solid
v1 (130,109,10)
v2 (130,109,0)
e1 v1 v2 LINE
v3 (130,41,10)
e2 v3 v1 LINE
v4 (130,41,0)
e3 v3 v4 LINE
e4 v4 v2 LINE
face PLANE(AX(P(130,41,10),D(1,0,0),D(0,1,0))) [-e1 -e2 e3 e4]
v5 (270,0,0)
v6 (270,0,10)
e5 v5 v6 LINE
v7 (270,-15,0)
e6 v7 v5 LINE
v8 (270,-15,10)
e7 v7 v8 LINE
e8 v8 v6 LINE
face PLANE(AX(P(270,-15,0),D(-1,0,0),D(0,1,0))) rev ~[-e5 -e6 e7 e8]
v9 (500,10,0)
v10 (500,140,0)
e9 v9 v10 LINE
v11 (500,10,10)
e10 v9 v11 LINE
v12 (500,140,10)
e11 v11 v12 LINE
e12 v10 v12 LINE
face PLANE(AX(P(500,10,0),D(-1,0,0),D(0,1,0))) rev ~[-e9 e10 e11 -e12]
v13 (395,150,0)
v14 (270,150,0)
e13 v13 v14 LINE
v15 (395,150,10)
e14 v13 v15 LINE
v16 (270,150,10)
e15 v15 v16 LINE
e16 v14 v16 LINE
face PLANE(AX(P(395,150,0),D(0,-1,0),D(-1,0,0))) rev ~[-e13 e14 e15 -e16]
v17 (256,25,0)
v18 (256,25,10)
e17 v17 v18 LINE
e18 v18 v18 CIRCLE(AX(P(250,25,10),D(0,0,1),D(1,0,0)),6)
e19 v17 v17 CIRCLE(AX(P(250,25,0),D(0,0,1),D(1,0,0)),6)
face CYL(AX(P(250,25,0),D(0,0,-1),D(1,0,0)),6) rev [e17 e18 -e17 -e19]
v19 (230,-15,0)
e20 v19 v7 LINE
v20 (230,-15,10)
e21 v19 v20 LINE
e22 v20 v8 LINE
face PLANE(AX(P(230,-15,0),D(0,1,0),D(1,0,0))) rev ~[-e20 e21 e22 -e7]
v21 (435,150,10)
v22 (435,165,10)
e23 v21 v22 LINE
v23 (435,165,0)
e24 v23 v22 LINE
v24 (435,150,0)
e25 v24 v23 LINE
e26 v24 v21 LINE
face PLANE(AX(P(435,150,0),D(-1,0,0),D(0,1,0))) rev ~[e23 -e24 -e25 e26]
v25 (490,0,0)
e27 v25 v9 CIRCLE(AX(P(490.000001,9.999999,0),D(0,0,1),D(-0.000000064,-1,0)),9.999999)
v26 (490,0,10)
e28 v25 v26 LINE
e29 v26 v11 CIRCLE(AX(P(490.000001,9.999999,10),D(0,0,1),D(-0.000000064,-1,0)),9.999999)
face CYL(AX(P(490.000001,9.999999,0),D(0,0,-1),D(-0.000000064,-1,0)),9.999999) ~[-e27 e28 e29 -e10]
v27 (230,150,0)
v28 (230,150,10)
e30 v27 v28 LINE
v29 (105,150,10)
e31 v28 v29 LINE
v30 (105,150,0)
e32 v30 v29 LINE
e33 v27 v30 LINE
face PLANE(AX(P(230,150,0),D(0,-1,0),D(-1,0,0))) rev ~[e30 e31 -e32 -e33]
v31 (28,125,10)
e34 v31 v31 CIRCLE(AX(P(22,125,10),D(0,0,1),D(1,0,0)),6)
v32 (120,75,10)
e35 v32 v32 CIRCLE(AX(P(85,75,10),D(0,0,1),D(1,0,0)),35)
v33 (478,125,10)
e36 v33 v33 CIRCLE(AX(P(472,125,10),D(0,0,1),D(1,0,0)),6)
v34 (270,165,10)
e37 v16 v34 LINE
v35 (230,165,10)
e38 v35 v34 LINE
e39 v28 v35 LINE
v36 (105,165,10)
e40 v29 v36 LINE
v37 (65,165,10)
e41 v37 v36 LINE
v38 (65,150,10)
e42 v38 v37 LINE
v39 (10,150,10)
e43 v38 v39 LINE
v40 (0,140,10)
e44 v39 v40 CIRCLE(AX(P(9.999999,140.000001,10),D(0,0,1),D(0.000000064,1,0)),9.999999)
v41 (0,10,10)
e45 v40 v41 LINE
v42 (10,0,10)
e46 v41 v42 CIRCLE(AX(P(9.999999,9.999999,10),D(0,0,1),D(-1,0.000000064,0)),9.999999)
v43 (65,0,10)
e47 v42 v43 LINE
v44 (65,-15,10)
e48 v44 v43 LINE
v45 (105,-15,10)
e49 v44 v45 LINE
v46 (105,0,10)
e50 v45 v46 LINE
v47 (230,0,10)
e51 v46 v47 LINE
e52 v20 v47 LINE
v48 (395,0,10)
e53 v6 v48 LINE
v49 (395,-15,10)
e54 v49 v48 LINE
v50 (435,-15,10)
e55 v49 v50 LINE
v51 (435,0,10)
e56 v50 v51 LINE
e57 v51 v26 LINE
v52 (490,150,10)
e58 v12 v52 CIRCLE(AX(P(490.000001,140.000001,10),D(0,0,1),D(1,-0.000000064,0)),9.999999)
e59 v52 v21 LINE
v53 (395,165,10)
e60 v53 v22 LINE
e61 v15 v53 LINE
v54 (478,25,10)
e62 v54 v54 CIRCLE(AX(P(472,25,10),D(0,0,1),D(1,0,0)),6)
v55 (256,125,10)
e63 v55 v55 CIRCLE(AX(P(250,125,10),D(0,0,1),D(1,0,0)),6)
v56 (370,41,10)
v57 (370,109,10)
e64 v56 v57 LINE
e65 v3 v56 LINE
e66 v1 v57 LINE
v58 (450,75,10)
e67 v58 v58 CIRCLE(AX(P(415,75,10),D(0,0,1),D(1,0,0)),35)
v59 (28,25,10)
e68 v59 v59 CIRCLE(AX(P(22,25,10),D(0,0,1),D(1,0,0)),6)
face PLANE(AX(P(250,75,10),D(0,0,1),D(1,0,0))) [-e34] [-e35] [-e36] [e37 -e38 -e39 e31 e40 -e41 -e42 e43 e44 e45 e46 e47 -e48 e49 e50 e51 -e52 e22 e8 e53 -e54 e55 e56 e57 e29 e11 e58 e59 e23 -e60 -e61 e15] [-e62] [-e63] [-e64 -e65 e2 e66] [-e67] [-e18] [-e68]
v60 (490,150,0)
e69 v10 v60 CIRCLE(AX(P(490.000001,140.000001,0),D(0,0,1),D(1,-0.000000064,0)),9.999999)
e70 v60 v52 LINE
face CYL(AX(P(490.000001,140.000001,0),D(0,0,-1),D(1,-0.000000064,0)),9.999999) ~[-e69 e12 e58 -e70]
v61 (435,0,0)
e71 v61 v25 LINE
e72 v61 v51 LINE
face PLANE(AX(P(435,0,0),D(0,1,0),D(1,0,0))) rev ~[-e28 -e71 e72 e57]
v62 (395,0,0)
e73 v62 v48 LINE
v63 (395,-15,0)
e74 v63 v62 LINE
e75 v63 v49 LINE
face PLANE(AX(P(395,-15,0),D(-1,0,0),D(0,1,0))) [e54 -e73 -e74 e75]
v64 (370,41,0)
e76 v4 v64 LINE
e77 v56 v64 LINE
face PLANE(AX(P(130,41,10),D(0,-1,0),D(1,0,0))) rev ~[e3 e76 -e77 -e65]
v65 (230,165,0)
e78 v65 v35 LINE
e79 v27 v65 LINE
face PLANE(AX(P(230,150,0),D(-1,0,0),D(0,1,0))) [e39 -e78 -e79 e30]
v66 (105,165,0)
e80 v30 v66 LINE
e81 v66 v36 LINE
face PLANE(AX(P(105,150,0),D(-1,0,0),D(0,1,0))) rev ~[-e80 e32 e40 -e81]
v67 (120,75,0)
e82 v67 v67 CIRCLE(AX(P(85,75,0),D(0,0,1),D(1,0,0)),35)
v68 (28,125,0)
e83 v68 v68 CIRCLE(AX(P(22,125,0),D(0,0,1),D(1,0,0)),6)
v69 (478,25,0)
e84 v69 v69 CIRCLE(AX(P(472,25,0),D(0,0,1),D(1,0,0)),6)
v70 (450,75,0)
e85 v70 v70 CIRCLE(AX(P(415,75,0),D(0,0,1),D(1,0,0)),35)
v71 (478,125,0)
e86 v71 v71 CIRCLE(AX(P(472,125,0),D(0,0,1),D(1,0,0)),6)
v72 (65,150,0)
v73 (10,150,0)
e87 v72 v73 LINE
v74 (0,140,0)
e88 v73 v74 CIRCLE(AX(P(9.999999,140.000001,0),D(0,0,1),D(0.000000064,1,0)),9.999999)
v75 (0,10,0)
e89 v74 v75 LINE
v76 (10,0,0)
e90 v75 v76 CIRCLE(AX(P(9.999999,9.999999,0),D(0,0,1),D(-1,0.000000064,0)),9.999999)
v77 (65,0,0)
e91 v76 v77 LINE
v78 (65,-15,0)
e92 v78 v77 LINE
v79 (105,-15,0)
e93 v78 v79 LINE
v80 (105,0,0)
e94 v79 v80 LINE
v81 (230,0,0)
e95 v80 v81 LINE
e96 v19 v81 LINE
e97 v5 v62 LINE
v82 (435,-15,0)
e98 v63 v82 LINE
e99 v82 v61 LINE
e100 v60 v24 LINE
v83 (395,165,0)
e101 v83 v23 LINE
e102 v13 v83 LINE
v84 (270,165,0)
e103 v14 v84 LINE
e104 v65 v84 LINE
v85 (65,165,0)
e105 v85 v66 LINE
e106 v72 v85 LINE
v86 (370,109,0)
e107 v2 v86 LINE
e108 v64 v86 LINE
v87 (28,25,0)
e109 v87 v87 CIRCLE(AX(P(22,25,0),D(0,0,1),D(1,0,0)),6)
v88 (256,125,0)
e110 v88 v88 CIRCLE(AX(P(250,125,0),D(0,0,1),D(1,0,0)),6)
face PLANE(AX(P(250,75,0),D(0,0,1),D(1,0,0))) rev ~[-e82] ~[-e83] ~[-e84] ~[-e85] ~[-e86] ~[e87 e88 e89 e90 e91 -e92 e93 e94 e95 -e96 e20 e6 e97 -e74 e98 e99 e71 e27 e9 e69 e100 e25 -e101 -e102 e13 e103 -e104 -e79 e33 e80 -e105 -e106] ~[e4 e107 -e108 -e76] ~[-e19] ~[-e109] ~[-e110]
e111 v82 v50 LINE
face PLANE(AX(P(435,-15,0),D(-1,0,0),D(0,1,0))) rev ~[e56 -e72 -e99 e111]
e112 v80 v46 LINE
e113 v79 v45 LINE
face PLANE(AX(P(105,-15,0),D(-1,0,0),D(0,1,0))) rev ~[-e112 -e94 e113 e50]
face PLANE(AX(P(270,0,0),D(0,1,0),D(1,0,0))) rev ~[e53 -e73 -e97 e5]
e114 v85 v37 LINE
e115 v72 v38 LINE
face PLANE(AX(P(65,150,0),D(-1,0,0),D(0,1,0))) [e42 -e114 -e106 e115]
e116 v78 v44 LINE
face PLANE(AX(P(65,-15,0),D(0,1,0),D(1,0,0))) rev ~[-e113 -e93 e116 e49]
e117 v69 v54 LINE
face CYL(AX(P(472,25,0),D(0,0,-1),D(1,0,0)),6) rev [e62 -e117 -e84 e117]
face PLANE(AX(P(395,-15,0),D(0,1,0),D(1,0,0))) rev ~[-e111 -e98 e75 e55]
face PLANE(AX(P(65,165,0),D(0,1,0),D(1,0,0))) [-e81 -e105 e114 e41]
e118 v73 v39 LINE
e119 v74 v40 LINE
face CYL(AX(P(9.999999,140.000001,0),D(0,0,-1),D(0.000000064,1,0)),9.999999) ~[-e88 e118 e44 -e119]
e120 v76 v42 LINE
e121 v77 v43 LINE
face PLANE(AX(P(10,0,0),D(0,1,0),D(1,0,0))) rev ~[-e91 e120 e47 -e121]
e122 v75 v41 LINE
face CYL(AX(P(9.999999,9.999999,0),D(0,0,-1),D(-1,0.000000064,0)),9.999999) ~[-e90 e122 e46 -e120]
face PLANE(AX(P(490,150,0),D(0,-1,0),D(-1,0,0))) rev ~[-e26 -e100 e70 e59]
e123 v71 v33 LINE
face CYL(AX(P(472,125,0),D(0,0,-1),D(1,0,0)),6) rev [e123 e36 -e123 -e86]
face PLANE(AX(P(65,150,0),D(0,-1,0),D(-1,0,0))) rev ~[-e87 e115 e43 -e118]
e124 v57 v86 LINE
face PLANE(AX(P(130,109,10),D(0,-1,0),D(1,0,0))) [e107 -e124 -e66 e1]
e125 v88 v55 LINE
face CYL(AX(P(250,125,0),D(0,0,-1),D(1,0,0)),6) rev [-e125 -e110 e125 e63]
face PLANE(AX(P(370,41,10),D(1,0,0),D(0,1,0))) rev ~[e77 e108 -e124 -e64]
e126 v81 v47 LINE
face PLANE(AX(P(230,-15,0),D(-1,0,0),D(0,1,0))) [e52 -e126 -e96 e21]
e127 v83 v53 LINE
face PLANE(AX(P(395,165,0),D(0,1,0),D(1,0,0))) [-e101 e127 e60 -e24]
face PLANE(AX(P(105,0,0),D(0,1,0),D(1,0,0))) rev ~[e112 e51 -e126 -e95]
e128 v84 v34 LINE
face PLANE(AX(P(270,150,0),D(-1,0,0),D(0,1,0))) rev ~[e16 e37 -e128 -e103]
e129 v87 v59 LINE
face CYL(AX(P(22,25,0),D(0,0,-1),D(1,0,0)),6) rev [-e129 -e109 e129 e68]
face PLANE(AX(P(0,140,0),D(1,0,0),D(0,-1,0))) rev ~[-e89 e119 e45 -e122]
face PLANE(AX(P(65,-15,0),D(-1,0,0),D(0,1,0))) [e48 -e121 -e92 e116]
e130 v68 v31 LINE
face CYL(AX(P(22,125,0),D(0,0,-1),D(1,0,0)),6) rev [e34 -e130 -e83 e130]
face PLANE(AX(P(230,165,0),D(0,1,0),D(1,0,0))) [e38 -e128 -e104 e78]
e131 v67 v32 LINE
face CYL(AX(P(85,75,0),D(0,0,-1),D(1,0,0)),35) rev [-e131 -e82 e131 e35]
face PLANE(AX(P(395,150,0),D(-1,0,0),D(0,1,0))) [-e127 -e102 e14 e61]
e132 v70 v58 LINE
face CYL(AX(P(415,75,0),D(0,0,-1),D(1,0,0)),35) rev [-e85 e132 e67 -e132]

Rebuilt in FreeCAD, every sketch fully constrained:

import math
import FreeCAD as App
import Part
import Sketcher

V = App.Vector

doc = App.newDocument("Part")
params = doc.addObject("Spreadsheet::Sheet", "Params")
for row, (alias, value) in enumerate([
    ("sketch1_diameter", "12 mm"),
    ("sketch1_diameter2", "70 mm"),
    ("sketch1_radius", "9.999999 mm"),
    ("sketch1_width", "55 mm"),
    ("sketch1_width2", "40 mm"),
    ("pad1_length", "10 mm"),
    ("sketch2_width", "240 mm"),
    ("sketch2_height", "68 mm"),
    ("pocket1_length", "25 mm"),
], start=1):
    params.set(f"A{row}", alias)
    params.set(f"B{row}", "=" + value)
    params.setAlias(f"B{row}", alias)

body = doc.addObject("PartDesign::Body", "Body")

# Sketch on XY plane
sketch1 = body.newObject("Sketcher::SketchObject", "Sketch")
sketch1.AttachmentSupport = (doc.getObject("XY_Plane"), [""])
sketch1.MapMode = "FlatFace"
sketch1.addGeometry([
    Part.ArcOfCircle(Part.Circle(V(10, 10, 0), V(0, 0, 1), 10), math.radians(180), math.radians(270)),  # 0
    Part.LineSegment(V(10, 0, 0), V(65, 0, 0)),  # 1
    Part.LineSegment(V(65, 0, 0), V(65, -15, 0)),  # 2
    Part.LineSegment(V(65, -15, 0), V(105, -15, 0)),  # 3
    Part.LineSegment(V(105, -15, 0), V(105, 0, 0)),  # 4
    Part.LineSegment(V(105, 0, 0), V(230, 0, 0)),  # 5
    Part.LineSegment(V(230, 0, 0), V(230, -15, 0)),  # 6
    Part.LineSegment(V(230, -15, 0), V(270, -15, 0)),  # 7
    Part.LineSegment(V(270, -15, 0), V(270, 0, 0)),  # 8
    Part.LineSegment(V(270, 0, 0), V(395, 0, 0)),  # 9
    Part.LineSegment(V(395, 0, 0), V(395, -15, 0)),  # 10
    Part.LineSegment(V(395, -15, 0), V(435, -15, 0)),  # 11
    Part.LineSegment(V(435, -15, 0), V(435, 0, 0)),  # 12
    Part.LineSegment(V(435, 0, 0), V(490, 0, 0)),  # 13
    Part.ArcOfCircle(Part.Circle(V(490, 10, 0), V(0, 0, 1), 10), math.radians(-90), math.radians(0)),  # 14
    Part.LineSegment(V(500, 10, 0), V(500, 140, 0)),  # 15
    Part.ArcOfCircle(Part.Circle(V(490, 140, 0), V(0, 0, 1), 10), math.radians(0), math.radians(90)),  # 16
    Part.LineSegment(V(490, 150, 0), V(435, 150, 0)),  # 17
    Part.LineSegment(V(435, 150, 0), V(435, 165, 0)),  # 18
    Part.LineSegment(V(435, 165, 0), V(395, 165, 0)),  # 19
    Part.LineSegment(V(395, 165, 0), V(395, 150, 0)),  # 20
    Part.LineSegment(V(395, 150, 0), V(270, 150, 0)),  # 21
    Part.LineSegment(V(270, 150, 0), V(270, 165, 0)),  # 22
    Part.LineSegment(V(270, 165, 0), V(230, 165, 0)),  # 23
    Part.LineSegment(V(230, 165, 0), V(230, 150, 0)),  # 24
    Part.LineSegment(V(230, 150, 0), V(105, 150, 0)),  # 25
    Part.LineSegment(V(105, 150, 0), V(105, 165, 0)),  # 26
    Part.LineSegment(V(105, 165, 0), V(65, 165, 0)),  # 27
    Part.LineSegment(V(65, 165, 0), V(65, 150, 0)),  # 28
    Part.LineSegment(V(65, 150, 0), V(10, 150, 0)),  # 29
    Part.ArcOfCircle(Part.Circle(V(10, 140, 0), V(0, 0, 1), 10), math.radians(90), math.radians(180)),  # 30
    Part.LineSegment(V(0, 140, 0), V(0, 10, 0)),  # 31
    Part.Circle(V(22, 25, 0), V(0, 0, 1), 6),  # 32
    Part.Circle(V(250, 25, 0), V(0, 0, 1), 6),  # 33
    Part.Circle(V(472, 25, 0), V(0, 0, 1), 6),  # 34
    Part.Circle(V(85, 75, 0), V(0, 0, 1), 35),  # 35
    Part.Circle(V(22, 125, 0), V(0, 0, 1), 6),  # 36
    Part.Circle(V(415, 75, 0), V(0, 0, 1), 35),  # 37
    Part.Circle(V(250, 125, 0), V(0, 0, 1), 6),  # 38
    Part.Circle(V(472, 125, 0), V(0, 0, 1), 6),  # 39
], False)
sketch1.addConstraint([
    Sketcher.Constraint("Tangent", 0, 2, 1, 1),
    Sketcher.Constraint("Coincident", 1, 2, 2, 1),
    Sketcher.Constraint("Coincident", 2, 2, 3, 1),
    Sketcher.Constraint("Coincident", 3, 2, 4, 1),
    Sketcher.Constraint("Coincident", 4, 2, 5, 1),
    Sketcher.Constraint("Coincident", 5, 2, 6, 1),
    Sketcher.Constraint("Coincident", 6, 2, 7, 1),
    Sketcher.Constraint("Coincident", 7, 2, 8, 1),
    Sketcher.Constraint("Coincident", 8, 2, 9, 1),
    Sketcher.Constraint("Coincident", 9, 2, 10, 1),
    Sketcher.Constraint("Coincident", 10, 2, 11, 1),
    Sketcher.Constraint("Coincident", 11, 2, 12, 1),
    Sketcher.Constraint("Coincident", 12, 2, 13, 1),
    Sketcher.Constraint("Tangent", 13, 2, 14, 1),
    Sketcher.Constraint("Tangent", 14, 2, 15, 1),
    Sketcher.Constraint("Tangent", 15, 2, 16, 1),
    Sketcher.Constraint("Tangent", 16, 2, 17, 1),
    Sketcher.Constraint("Coincident", 17, 2, 18, 1),
    Sketcher.Constraint("Coincident", 18, 2, 19, 1),
    Sketcher.Constraint("Coincident", 19, 2, 20, 1),
    Sketcher.Constraint("Coincident", 20, 2, 21, 1),
    Sketcher.Constraint("Coincident", 21, 2, 22, 1),
    Sketcher.Constraint("Coincident", 22, 2, 23, 1),
    Sketcher.Constraint("Coincident", 23, 2, 24, 1),
    Sketcher.Constraint("Coincident", 24, 2, 25, 1),
    Sketcher.Constraint("Coincident", 25, 2, 26, 1),
    Sketcher.Constraint("Coincident", 26, 2, 27, 1),
    Sketcher.Constraint("Coincident", 27, 2, 28, 1),
    Sketcher.Constraint("Coincident", 28, 2, 29, 1),
    Sketcher.Constraint("Tangent", 29, 2, 30, 1),
    Sketcher.Constraint("Tangent", 30, 2, 31, 1),
    Sketcher.Constraint("Tangent", 31, 2, 0, 1),
    Sketcher.Constraint("Horizontal", 1),
    Sketcher.Constraint("Vertical", 2),
    Sketcher.Constraint("Horizontal", 3),
    Sketcher.Constraint("Vertical", 4),
    Sketcher.Constraint("Horizontal", 5),
    Sketcher.Constraint("Vertical", 6),
    Sketcher.Constraint("Horizontal", 7),
    Sketcher.Constraint("Vertical", 8),
    Sketcher.Constraint("Horizontal", 9),
    Sketcher.Constraint("Vertical", 10),
    Sketcher.Constraint("Horizontal", 11),
    Sketcher.Constraint("Vertical", 12),
    Sketcher.Constraint("Horizontal", 13),
    Sketcher.Constraint("Vertical", 15),
    Sketcher.Constraint("Horizontal", 17),
    Sketcher.Constraint("Vertical", 18),
    Sketcher.Constraint("Horizontal", 19),
    Sketcher.Constraint("Vertical", 20),
    Sketcher.Constraint("Horizontal", 21),
    Sketcher.Constraint("Vertical", 22),
    Sketcher.Constraint("Horizontal", 23),
    Sketcher.Constraint("Vertical", 24),
    Sketcher.Constraint("Horizontal", 25),
    Sketcher.Constraint("Vertical", 26),
    Sketcher.Constraint("Horizontal", 27),
    Sketcher.Constraint("Vertical", 28),
    Sketcher.Constraint("Horizontal", 29),
    Sketcher.Constraint("Vertical", 31),
    Sketcher.Constraint("Equal", 0, 14),
    Sketcher.Constraint("Equal", 14, 16),
    Sketcher.Constraint("Equal", 16, 30),
    Sketcher.Constraint("Equal", 32, 33),
    Sketcher.Constraint("Equal", 33, 34),
    Sketcher.Constraint("Equal", 34, 36),
    Sketcher.Constraint("Equal", 35, 37),
    Sketcher.Constraint("Equal", 36, 38),
    Sketcher.Constraint("Equal", 38, 39),
    Sketcher.Constraint("PointOnObject", 0, 2, -1),
    Sketcher.Constraint("PointOnObject", 4, 2, -1),
    Sketcher.Constraint("PointOnObject", 8, 2, -1),
    Sketcher.Constraint("PointOnObject", 12, 2, -1),
    Sketcher.Constraint("PointOnObject", 30, 2, -2),
    Sketcher.Constraint("Horizontal", 16, 3, 30, 3),
    Sketcher.Constraint("Horizontal", 32, 3, 33, 3),
    Sketcher.Constraint("Horizontal", 33, 3, 34, 3),
    Sketcher.Constraint("Horizontal", 35, 3, 37, 3),
    Sketcher.Constraint("Horizontal", 36, 3, 38, 3),
    Sketcher.Constraint("Horizontal", 38, 3, 39, 3),
    Sketcher.Constraint("Horizontal", 3, 2, 6, 2),
    Sketcher.Constraint("Horizontal", 7, 2, 10, 2),
    Sketcher.Constraint("Horizontal", 17, 2, 20, 2),
    Sketcher.Constraint("Horizontal", 19, 2, 22, 2),
    Sketcher.Constraint("Horizontal", 21, 2, 24, 2),
    Sketcher.Constraint("Horizontal", 23, 2, 26, 2),
    Sketcher.Constraint("Vertical", 32, 3, 36, 3),
    Sketcher.Constraint("Vertical", 33, 3, 38, 3),
    Sketcher.Constraint("Vertical", 34, 3, 39, 3),
    Sketcher.Constraint("Vertical", 12, 2, 17, 2),
    Sketcher.Constraint("Vertical", 10, 2, 19, 2),
    Sketcher.Constraint("Vertical", 8, 2, 21, 2),
    Sketcher.Constraint("Vertical", 6, 2, 23, 2),
    Sketcher.Constraint("Vertical", 4, 2, 25, 2),
    Sketcher.Constraint("Vertical", 2, 2, 27, 2),
    Sketcher.Constraint("Equal", 3, 7),
    Sketcher.Constraint("Equal", 5, 9),
    Sketcher.Constraint("Equal", 7, 11),
    Sketcher.Constraint("Equal", 1, 13),
    Sketcher.Constraint("Equal", 12, 18),
    Sketcher.Constraint("Diameter", 32, 12.0),
    Sketcher.Constraint("Diameter", 35, 70.0),
    Sketcher.Constraint("Radius", 0, 9.999999),
    Sketcher.Constraint("DistanceX", 1, 1, 1, 2, 55.0),
    Sketcher.Constraint("DistanceX", 3, 1, 3, 2, 40.0),
    Sketcher.Constraint("DistanceX", 5, 1, 5, 2, 125.0),
    Sketcher.Constraint("DistanceY", 2, 2, 2, 1, 15.0),
    Sketcher.Constraint("DistanceY", 15, 1, 15, 2, 130.0),
    Sketcher.Constraint("DistanceX", -1, 1, 32, 3, 22.0),
    Sketcher.Constraint("DistanceY", -1, 1, 32, 3, 25.0),
    Sketcher.Constraint("DistanceX", -1, 1, 33, 3, 250.0),
    Sketcher.Constraint("DistanceX", -1, 1, 34, 3, 472.0),
    Sketcher.Constraint("DistanceX", -1, 1, 35, 3, 85.0),
    Sketcher.Constraint("DistanceY", -1, 1, 35, 3, 75.0),
    Sketcher.Constraint("DistanceY", -1, 1, 36, 3, 125.0),
    Sketcher.Constraint("DistanceX", -1, 1, 37, 3, 415.0),
])
sketch1.setExpression("Constraints[100]", "Params.sketch1_diameter")
sketch1.setExpression("Constraints[101]", "Params.sketch1_diameter2")
sketch1.setExpression("Constraints[102]", "Params.sketch1_radius")
sketch1.setExpression("Constraints[103]", "Params.sketch1_width")
sketch1.setExpression("Constraints[104]", "Params.sketch1_width2")
pad1 = body.newObject("PartDesign::Pad", "Pad")
pad1.Profile = sketch1
pad1.setExpression("Length", "Params.pad1_length")

# Sketch on XY plane
sketch2 = body.newObject("Sketcher::SketchObject", "Sketch001")
sketch2.AttachmentSupport = (doc.getObject("XY_Plane"), [""])
sketch2.MapMode = "FlatFace"
sketch2.AttachmentOffset = App.Placement(V(0, 0, 10), App.Rotation())
sketch2.addGeometry([
    Part.LineSegment(V(130, 109, 0), V(130, 41, 0)),
    Part.LineSegment(V(130, 41, 0), V(370, 41, 0)),
    Part.LineSegment(V(370, 41, 0), V(370, 109, 0)),
    Part.LineSegment(V(370, 109, 0), V(130, 109, 0)),
], False)
sketch2.addConstraint([
    Sketcher.Constraint("Coincident", 0, 2, 1, 1),
    Sketcher.Constraint("Coincident", 1, 2, 2, 1),
    Sketcher.Constraint("Coincident", 2, 2, 3, 1),
    Sketcher.Constraint("Coincident", 3, 2, 0, 1),
    Sketcher.Constraint("Vertical", 0),
    Sketcher.Constraint("Horizontal", 1),
    Sketcher.Constraint("Vertical", 2),
    Sketcher.Constraint("Horizontal", 3),
    Sketcher.Constraint("DistanceX", 1, 1, 1, 2, 240.0),
    Sketcher.Constraint("DistanceY", 0, 2, 0, 1, 68.0),
    Sketcher.Constraint("DistanceX", -1, 1, 0, 2, 130.0),
    Sketcher.Constraint("DistanceY", -1, 1, 0, 2, 41.0),
])
sketch2.setExpression("Constraints[8]", "Params.sketch2_width")
sketch2.setExpression("Constraints[9]", "Params.sketch2_height")
pocket1 = body.newObject("PartDesign::Pocket", "Pocket")
pocket1.Profile = sketch2
pocket1.setExpression("Length", "Params.pocket1_length")

doc.recompute()
